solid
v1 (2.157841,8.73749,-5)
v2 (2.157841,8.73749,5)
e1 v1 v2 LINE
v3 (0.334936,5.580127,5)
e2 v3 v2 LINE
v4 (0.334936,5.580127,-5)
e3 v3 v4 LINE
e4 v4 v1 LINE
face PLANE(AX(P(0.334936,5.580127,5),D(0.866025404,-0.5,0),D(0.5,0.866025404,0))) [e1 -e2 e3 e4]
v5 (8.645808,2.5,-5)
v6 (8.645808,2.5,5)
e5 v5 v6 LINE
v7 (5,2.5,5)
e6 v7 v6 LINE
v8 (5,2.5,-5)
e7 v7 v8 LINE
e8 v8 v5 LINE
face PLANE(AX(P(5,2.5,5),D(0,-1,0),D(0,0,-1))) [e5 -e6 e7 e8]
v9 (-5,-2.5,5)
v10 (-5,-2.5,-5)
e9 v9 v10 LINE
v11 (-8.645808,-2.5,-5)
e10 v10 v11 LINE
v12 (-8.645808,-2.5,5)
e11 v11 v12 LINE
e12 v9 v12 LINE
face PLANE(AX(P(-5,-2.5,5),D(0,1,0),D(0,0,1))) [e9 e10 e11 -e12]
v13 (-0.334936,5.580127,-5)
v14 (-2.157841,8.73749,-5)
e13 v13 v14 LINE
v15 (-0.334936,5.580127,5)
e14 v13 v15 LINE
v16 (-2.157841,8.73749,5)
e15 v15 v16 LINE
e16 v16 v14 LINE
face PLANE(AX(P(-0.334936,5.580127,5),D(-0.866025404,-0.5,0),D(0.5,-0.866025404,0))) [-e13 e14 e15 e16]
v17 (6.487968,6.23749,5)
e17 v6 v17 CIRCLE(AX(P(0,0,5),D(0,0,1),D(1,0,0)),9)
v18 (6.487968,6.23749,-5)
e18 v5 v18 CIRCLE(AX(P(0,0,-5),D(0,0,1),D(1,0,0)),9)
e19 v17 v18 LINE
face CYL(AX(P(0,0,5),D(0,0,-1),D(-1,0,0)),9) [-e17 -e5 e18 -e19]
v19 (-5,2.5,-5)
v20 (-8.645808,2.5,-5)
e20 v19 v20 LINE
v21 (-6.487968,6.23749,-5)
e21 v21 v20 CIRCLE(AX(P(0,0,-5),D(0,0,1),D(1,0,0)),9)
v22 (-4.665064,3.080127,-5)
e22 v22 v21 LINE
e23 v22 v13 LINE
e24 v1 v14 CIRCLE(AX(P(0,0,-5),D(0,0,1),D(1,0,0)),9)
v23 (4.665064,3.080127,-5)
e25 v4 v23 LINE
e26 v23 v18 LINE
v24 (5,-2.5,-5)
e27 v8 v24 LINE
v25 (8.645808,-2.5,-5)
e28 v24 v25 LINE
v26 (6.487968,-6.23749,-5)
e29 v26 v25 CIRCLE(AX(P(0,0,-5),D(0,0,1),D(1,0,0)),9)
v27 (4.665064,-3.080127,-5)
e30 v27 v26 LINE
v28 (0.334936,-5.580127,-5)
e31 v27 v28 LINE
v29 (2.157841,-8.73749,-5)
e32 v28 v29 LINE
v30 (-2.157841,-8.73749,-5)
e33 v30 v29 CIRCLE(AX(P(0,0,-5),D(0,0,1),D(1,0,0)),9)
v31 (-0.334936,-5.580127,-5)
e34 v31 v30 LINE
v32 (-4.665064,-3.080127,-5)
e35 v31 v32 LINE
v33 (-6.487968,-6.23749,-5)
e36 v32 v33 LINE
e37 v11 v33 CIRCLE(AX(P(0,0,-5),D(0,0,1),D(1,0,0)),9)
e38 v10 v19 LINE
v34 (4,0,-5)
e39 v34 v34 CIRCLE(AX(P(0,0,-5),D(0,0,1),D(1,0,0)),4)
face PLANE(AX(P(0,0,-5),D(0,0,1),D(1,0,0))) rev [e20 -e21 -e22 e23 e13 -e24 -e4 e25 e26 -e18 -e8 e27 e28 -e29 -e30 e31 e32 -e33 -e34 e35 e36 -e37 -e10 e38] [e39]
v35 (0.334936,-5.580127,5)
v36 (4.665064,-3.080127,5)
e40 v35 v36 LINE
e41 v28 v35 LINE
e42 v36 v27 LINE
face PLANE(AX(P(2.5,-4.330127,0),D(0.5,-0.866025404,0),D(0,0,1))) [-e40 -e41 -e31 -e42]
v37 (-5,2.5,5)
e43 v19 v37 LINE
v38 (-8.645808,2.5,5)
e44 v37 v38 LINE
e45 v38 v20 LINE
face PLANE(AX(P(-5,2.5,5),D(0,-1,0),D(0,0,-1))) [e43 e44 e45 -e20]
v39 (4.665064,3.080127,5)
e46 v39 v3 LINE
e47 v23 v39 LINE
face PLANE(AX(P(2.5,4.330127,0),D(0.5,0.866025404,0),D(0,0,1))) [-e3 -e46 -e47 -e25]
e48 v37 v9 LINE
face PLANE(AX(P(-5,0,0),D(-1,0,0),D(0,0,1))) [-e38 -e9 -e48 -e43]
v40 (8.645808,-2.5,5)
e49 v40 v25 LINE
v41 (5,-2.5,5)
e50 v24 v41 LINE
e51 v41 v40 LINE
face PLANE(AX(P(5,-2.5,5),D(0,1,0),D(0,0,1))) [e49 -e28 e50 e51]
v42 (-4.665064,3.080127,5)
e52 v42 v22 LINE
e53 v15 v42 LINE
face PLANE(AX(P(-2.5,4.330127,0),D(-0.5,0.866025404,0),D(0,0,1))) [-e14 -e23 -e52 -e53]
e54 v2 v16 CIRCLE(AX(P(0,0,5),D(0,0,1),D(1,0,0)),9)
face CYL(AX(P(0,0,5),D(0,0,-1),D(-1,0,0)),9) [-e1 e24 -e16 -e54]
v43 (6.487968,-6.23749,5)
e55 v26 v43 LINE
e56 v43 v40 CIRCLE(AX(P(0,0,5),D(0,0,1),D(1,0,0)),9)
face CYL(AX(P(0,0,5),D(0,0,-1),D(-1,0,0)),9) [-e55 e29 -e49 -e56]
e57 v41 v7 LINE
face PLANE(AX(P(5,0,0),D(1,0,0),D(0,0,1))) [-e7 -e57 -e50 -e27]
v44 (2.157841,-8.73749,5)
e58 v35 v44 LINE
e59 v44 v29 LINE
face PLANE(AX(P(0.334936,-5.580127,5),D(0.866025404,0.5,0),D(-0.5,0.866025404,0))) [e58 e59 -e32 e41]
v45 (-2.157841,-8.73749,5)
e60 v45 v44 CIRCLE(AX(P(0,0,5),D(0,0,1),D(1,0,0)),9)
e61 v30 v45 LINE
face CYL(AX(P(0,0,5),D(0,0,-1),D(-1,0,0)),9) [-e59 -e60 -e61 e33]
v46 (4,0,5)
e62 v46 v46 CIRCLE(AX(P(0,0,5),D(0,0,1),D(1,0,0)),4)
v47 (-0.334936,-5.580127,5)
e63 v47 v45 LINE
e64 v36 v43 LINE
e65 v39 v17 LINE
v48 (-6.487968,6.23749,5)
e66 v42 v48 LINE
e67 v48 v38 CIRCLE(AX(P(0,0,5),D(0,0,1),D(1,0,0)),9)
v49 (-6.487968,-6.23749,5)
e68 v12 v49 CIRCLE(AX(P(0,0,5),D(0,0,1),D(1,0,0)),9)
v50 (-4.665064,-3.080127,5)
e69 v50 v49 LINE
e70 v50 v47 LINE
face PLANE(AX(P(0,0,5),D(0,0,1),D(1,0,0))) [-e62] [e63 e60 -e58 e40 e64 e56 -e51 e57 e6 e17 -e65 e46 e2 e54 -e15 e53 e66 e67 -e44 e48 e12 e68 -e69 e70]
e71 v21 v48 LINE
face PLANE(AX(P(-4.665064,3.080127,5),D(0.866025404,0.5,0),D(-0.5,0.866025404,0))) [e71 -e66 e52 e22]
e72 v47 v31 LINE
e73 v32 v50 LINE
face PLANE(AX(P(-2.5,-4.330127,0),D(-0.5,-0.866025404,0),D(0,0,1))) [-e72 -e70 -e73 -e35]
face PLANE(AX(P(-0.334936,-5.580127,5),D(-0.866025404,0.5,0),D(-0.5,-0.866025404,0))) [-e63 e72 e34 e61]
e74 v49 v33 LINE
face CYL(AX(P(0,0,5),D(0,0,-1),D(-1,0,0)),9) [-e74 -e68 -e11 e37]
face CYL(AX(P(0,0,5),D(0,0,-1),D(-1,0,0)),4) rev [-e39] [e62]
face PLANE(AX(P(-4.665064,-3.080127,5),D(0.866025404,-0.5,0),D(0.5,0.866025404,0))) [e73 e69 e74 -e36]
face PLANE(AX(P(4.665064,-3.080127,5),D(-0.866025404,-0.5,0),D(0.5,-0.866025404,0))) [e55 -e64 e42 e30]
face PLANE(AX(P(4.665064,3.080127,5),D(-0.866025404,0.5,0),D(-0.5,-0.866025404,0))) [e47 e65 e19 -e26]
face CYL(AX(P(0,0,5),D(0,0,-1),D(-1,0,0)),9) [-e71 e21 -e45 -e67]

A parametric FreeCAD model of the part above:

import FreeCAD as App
import Part
import Sketcher

V = App.Vector

doc = App.newDocument("Part")
params = doc.addObject("Spreadsheet::Sheet", "Params")
for row, (alias, value) in enumerate([
    ("sketch1_diameter", "18 mm"),
    ("sketch1_diameter2", "8 mm"),
    ("pad1_length", "10 mm"),
    ("sketch2_width", "5 mm"),
    ("sketch2_height", "10 mm"),
    ("pocket1_length", "4 mm"),
], start=1):
    params.set(f"A{row}", alias)
    params.set(f"B{row}", "=" + value)
    params.setAlias(f"B{row}", alias)

body = doc.addObject("PartDesign::Body", "Body")

sketch1 = doc.addObject("Sketcher::SketchObject", "Sketch")
body.addObject(sketch1)
sketch1.AttachmentSupport = (doc.XY_Plane, [""])
sketch1.MapMode = "FlatFace"
sketch1.addGeometry(Part.Circle(V(0, 0, 0), V(0, 0, 1), 9), False)
sketch1.addGeometry(Part.Circle(V(0, 0, 0), V(0, 0, 1), 4), False)
sketch1.addConstraint(Sketcher.Constraint("Coincident", 0, 3, -1, 1))
sketch1.addConstraint(Sketcher.Constraint("Coincident", 1, 3, -1, 1))
sketch1.addConstraint(Sketcher.Constraint("Diameter", 0, 18.0))
sketch1.addConstraint(Sketcher.Constraint("Diameter", 1, 8.0))
sketch1.setExpression("Constraints[2]", "Params.sketch1_diameter")
sketch1.setExpression("Constraints[3]", "Params.sketch1_diameter2")
pad1 = doc.addObject("PartDesign::Pad", "Pad")
body.addObject(pad1)
pad1.Profile = sketch1
pad1.setExpression("Length", "Params.pad1_length")
pad1.Midplane = True

sketch2 = doc.addObject("Sketcher::SketchObject", "Sketch001")
body.addObject(sketch2)
sketch2.AttachmentSupport = (doc.YZ_Plane, [""])
sketch2.MapMode = "FlatFace"
sketch2.AttachmentOffset = App.Placement(V(0, 0, -9), App.Rotation())
sketch2.addGeometry(Part.LineSegment(V(2, -5, 0), V(2, 5, 0)), False)
sketch2.addGeometry(Part.LineSegment(V(2, 5, 0), V(-2, 5, 0)), False)
sketch2.addGeometry(Part.LineSegment(V(-2, 5, 0), V(-2, -5, 0)), False)
sketch2.addGeometry(Part.LineSegment(V(-2, -5, 0), V(2, -5, 0)), False)
sketch2.addConstraint(Sketcher.Constraint("Coincident", 0, 2, 1, 1))
sketch2.addConstraint(Sketcher.Constraint("Coincident", 1, 2, 2, 1))
sketch2.addConstraint(Sketcher.Constraint("Coincident", 2, 2, 3, 1))
sketch2.addConstraint(Sketcher.Constraint("Coincident", 3, 2, 0, 1))
sketch2.addConstraint(Sketcher.Constraint("Vertical", 0))
sketch2.addConstraint(Sketcher.Constraint("Horizontal", 1))
sketch2.addConstraint(Sketcher.Constraint("Vertical", 2))
sketch2.addConstraint(Sketcher.Constraint("Horizontal", 3))
sketch2.addConstraint(Sketcher.Constraint("Symmetric", 0, 2, 2, 2, -1, 1))
sketch2.addConstraint(Sketcher.Constraint("DistanceX", 1, 2, 1, 1, 5.0))
sketch2.addConstraint(Sketcher.Constraint("DistanceY", 0, 1, 0, 2, 10.0))
sketch2.setExpression("Constraints[9]", "Params.sketch2_width")
sketch2.setExpression("Constraints[10]", "Params.sketch2_height")
pocket1 = doc.addObject("PartDesign::Pocket", "Pocket")
body.addObject(pocket1)
pocket1.Profile = sketch2
pocket1.setExpression("Length", "Params.pocket1_length")
pocket1.Reversed = True
doc.recompute()

polarpattern = doc.addObject("PartDesign::PolarPattern", "PolarPattern")
body.addObject(polarpattern)
polarpattern.Originals = [pocket1]
polarpattern.Axis = (doc.Z_Axis, [""])
polarpattern.Angle = 360
polarpattern.Occurrences = 6
body.Tip = polarpattern

doc.recompute()
